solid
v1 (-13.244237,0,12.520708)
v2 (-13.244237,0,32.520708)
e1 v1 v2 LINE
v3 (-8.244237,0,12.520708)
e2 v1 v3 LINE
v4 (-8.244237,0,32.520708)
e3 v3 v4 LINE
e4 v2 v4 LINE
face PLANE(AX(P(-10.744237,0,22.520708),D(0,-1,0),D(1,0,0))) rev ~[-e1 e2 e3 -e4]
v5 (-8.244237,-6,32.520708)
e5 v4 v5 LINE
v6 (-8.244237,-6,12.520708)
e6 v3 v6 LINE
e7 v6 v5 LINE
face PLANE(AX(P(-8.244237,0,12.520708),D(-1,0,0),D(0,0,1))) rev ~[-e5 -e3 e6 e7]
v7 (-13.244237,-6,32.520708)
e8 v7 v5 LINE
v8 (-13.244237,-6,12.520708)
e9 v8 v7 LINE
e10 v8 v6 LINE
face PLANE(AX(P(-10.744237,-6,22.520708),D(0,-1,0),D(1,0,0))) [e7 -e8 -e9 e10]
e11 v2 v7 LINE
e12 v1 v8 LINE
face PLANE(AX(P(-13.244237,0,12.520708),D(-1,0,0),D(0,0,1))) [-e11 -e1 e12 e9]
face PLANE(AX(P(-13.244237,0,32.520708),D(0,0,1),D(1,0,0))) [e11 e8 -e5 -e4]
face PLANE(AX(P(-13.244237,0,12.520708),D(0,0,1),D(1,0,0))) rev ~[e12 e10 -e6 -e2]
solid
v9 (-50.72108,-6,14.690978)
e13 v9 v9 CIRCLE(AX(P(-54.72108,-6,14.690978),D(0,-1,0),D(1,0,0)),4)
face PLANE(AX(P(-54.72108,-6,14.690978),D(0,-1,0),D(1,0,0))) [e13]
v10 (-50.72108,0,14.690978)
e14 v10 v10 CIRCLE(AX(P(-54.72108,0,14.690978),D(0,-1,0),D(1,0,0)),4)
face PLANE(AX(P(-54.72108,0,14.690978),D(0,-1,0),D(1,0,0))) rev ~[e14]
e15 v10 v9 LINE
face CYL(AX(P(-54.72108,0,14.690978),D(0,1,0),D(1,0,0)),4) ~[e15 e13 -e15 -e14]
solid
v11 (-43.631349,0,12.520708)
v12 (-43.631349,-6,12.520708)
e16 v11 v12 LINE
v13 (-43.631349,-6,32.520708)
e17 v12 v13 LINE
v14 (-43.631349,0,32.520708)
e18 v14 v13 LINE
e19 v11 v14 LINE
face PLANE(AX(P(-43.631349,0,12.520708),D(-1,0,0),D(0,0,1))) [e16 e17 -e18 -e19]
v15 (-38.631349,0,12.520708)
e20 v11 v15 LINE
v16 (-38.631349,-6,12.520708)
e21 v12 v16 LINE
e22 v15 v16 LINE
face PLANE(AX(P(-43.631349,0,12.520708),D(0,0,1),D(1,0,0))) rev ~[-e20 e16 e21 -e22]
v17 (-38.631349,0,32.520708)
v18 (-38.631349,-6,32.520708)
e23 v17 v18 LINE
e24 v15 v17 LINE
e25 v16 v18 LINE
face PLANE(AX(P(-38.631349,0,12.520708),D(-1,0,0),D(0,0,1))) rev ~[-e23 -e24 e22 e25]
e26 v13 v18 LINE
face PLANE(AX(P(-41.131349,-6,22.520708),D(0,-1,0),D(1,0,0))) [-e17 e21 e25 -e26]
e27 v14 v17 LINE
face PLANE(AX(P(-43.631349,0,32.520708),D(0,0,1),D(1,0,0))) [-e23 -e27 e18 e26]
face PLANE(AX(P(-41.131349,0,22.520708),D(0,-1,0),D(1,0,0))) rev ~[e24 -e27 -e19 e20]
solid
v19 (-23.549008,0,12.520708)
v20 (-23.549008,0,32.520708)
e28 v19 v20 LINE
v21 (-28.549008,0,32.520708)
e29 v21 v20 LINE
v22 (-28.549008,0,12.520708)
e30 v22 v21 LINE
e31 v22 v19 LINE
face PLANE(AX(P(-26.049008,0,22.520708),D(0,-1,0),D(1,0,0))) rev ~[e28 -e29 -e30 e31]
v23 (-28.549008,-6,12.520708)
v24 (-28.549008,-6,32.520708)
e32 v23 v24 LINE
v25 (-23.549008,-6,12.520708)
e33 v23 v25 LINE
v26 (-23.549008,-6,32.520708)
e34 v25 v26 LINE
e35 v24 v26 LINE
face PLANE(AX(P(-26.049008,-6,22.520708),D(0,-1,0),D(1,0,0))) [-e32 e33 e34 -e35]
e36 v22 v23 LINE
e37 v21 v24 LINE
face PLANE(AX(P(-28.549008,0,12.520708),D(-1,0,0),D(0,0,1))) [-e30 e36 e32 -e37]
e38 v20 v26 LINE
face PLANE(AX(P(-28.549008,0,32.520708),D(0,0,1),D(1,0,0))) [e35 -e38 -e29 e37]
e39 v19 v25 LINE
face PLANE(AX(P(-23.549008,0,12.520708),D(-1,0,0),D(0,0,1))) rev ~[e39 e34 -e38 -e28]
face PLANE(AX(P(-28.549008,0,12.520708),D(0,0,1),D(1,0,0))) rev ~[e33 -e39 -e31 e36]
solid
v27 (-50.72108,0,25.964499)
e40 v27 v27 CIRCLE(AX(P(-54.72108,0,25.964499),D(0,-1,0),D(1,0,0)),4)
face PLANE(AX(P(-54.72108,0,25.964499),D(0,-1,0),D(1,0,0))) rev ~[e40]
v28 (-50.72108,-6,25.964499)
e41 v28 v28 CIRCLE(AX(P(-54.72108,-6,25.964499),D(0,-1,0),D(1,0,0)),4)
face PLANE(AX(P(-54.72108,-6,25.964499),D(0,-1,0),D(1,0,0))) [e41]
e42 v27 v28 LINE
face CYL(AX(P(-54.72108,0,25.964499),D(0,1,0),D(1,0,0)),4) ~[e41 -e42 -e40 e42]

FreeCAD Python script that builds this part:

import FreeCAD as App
import Part
import Sketcher
from FreeCAD import Vector

doc = App.newDocument("Part")
params = doc.addObject("Spreadsheet::Sheet", "Params")
for row, (alias, value) in enumerate([
    ("sketch1_diameter", "8 mm"),
    ("sketch1_width", "5 mm"),
    ("sketch1_height", "20 mm"),
    ("pad1_length", "6 mm"),
], start=1):
    params.set(f"A{row}", alias)
    params.set(f"B{row}", "=" + value)
    params.setAlias(f"B{row}", alias)

body = doc.addObject("PartDesign::Body", "Body")
body.AllowCompound = True

# Sketch on XZ plane
sketch1 = body.newObject("Sketcher::SketchObject", "Sketch")
sketch1.AttachmentSupport = (doc.getObject("XZ_Plane"), [""])
sketch1.MapMode = "FlatFace"
sketch1.addGeometry(Part.LineSegment(Vector(-43.6, 32.5, 0), Vector(-43.6, 12.5, 0)), False)
sketch1.addGeometry(Part.LineSegment(Vector(-43.6, 12.5, 0), Vector(-38.6, 12.5, 0)), False)
sketch1.addGeometry(Part.LineSegment(Vector(-38.6, 12.5, 0), Vector(-38.6, 32.5, 0)), False)
sketch1.addGeometry(Part.LineSegment(Vector(-38.6, 32.5, 0), Vector(-43.6, 32.5, 0)), False)
sketch1.addGeometry(Part.Circle(Vector(-54.7, 26, 0), Vector(0, 0, 1), 4), False)
sketch1.addGeometry(Part.LineSegment(Vector(-28.5, 32.5, 0), Vector(-28.5, 12.5, 0)), False)
sketch1.addGeometry(Part.LineSegment(Vector(-28.5, 12.5, 0), Vector(-23.5, 12.5, 0)), False)
sketch1.addGeometry(Part.LineSegment(Vector(-23.5, 12.5, 0), Vector(-23.5, 32.5, 0)), False)
sketch1.addGeometry(Part.LineSegment(Vector(-23.5, 32.5, 0), Vector(-28.5, 32.5, 0)), False)
sketch1.addGeometry(Part.LineSegment(Vector(-13.2, 32.5, 0), Vector(-13.2, 12.5, 0)), False)
sketch1.addGeometry(Part.LineSegment(Vector(-13.2, 12.5, 0), Vector(-8.2, 12.5, 0)), False)
sketch1.addGeometry(Part.LineSegment(Vector(-8.2, 12.5, 0), Vector(-8.2, 32.5, 0)), False)
sketch1.addGeometry(Part.LineSegment(Vector(-8.2, 32.5, 0), Vector(-13.2, 32.5, 0)), False)
sketch1.addGeometry(Part.Circle(Vector(-54.7, 14.7, 0), Vector(0, 0, 1), 4), False)
sketch1.addConstraint(Sketcher.Constraint("Coincident", 0, 2, 1, 1))
sketch1.addConstraint(Sketcher.Constraint("Coincident", 1, 2, 2, 1))
sketch1.addConstraint(Sketcher.Constraint("Coincident", 2, 2, 3, 1))
sketch1.addConstraint(Sketcher.Constraint("Coincident", 3, 2, 0, 1))
sketch1.addConstraint(Sketcher.Constraint("Coincident", 5, 2, 6, 1))
sketch1.addConstraint(Sketcher.Constraint("Coincident", 6, 2, 7, 1))
sketch1.addConstraint(Sketcher.Constraint("Coincident", 7, 2, 8, 1))
sketch1.addConstraint(Sketcher.Constraint("Coincident", 8, 2, 5, 1))
sketch1.addConstraint(Sketcher.Constraint("Coincident", 9, 2, 10, 1))
sketch1.addConstraint(Sketcher.Constraint("Coincident", 10, 2, 11, 1))
sketch1.addConstraint(Sketcher.Constraint("Coincident", 11, 2, 12, 1))
sketch1.addConstraint(Sketcher.Constraint("Coincident", 12, 2, 9, 1))
sketch1.addConstraint(Sketcher.Constraint("Vertical", 0))
sketch1.addConstraint(Sketcher.Constraint("Horizontal", 1))
sketch1.addConstraint(Sketcher.Constraint("Vertical", 2))
sketch1.addConstraint(Sketcher.Constraint("Horizontal", 3))
sketch1.addConstraint(Sketcher.Constraint("Vertical", 5))
sketch1.addConstraint(Sketcher.Constraint("Horizontal", 6))
sketch1.addConstraint(Sketcher.Constraint("Vertical", 7))
sketch1.addConstraint(Sketcher.Constraint("Horizontal", 8))
sketch1.addConstraint(Sketcher.Constraint("Vertical", 9))
sketch1.addConstraint(Sketcher.Constraint("Horizontal", 10))
sketch1.addConstraint(Sketcher.Constraint("Vertical", 11))
sketch1.addConstraint(Sketcher.Constraint("Horizontal", 12))
sketch1.addConstraint(Sketcher.Constraint("Equal", 4, 13))
sketch1.addConstraint(Sketcher.Constraint("Horizontal", 1, 2, 5, 2))
sketch1.addConstraint(Sketcher.Constraint("Horizontal", 3, 2, 7, 2))
sketch1.addConstraint(Sketcher.Constraint("Horizontal", 6, 2, 9, 2))
sketch1.addConstraint(Sketcher.Constraint("Horizontal", 8, 2, 11, 2))
sketch1.addConstraint(Sketcher.Constraint("Vertical", 4, 3, 13, 3))
sketch1.addConstraint(Sketcher.Constraint("Equal", 3, 6))
sketch1.addConstraint(Sketcher.Constraint("Equal", 8, 10))
sketch1.addConstraint(Sketcher.Constraint("Diameter", 4, 8.0))
sketch1.addConstraint(Sketcher.Constraint("DistanceX", 1, 1, 1, 2, 5.0))
sketch1.addConstraint(Sketcher.Constraint("DistanceY", 0, 2, 0, 1, 20.0))
sketch1.addConstraint(Sketcher.Constraint("DistanceY", -1, 1, 4, 3, 25.964499))
sketch1.addConstraint(Sketcher.Constraint("DistanceX", 4, 3, -1, 1, 54.72108))
sketch1.addConstraint(Sketcher.Constraint("DistanceX", 0, 2, -1, 1, 43.631349))
sketch1.addConstraint(Sketcher.Constraint("DistanceY", -1, 1, 0, 2, 12.520708))
sketch1.addConstraint(Sketcher.Constraint("DistanceX", 5, 2, -1, 1, 28.549008))
sketch1.addConstraint(Sketcher.Constraint("DistanceY", 13, 3, 4, 3, 11.273521))
sketch1.addConstraint(Sketcher.Constraint("DistanceX", 6, 2, 9, 2, 10.304771))
sketch1.setExpression("Constraints[32]", "Params.sketch1_diameter")
sketch1.setExpression("Constraints[33]", "Params.sketch1_width")
sketch1.setExpression("Constraints[34]", "Params.sketch1_height")
pad1 = body.newObject("PartDesign::Pad", "Pad")
pad1.Profile = sketch1
pad1.setExpression("Length", "Params.pad1_length")

doc.recompute()
